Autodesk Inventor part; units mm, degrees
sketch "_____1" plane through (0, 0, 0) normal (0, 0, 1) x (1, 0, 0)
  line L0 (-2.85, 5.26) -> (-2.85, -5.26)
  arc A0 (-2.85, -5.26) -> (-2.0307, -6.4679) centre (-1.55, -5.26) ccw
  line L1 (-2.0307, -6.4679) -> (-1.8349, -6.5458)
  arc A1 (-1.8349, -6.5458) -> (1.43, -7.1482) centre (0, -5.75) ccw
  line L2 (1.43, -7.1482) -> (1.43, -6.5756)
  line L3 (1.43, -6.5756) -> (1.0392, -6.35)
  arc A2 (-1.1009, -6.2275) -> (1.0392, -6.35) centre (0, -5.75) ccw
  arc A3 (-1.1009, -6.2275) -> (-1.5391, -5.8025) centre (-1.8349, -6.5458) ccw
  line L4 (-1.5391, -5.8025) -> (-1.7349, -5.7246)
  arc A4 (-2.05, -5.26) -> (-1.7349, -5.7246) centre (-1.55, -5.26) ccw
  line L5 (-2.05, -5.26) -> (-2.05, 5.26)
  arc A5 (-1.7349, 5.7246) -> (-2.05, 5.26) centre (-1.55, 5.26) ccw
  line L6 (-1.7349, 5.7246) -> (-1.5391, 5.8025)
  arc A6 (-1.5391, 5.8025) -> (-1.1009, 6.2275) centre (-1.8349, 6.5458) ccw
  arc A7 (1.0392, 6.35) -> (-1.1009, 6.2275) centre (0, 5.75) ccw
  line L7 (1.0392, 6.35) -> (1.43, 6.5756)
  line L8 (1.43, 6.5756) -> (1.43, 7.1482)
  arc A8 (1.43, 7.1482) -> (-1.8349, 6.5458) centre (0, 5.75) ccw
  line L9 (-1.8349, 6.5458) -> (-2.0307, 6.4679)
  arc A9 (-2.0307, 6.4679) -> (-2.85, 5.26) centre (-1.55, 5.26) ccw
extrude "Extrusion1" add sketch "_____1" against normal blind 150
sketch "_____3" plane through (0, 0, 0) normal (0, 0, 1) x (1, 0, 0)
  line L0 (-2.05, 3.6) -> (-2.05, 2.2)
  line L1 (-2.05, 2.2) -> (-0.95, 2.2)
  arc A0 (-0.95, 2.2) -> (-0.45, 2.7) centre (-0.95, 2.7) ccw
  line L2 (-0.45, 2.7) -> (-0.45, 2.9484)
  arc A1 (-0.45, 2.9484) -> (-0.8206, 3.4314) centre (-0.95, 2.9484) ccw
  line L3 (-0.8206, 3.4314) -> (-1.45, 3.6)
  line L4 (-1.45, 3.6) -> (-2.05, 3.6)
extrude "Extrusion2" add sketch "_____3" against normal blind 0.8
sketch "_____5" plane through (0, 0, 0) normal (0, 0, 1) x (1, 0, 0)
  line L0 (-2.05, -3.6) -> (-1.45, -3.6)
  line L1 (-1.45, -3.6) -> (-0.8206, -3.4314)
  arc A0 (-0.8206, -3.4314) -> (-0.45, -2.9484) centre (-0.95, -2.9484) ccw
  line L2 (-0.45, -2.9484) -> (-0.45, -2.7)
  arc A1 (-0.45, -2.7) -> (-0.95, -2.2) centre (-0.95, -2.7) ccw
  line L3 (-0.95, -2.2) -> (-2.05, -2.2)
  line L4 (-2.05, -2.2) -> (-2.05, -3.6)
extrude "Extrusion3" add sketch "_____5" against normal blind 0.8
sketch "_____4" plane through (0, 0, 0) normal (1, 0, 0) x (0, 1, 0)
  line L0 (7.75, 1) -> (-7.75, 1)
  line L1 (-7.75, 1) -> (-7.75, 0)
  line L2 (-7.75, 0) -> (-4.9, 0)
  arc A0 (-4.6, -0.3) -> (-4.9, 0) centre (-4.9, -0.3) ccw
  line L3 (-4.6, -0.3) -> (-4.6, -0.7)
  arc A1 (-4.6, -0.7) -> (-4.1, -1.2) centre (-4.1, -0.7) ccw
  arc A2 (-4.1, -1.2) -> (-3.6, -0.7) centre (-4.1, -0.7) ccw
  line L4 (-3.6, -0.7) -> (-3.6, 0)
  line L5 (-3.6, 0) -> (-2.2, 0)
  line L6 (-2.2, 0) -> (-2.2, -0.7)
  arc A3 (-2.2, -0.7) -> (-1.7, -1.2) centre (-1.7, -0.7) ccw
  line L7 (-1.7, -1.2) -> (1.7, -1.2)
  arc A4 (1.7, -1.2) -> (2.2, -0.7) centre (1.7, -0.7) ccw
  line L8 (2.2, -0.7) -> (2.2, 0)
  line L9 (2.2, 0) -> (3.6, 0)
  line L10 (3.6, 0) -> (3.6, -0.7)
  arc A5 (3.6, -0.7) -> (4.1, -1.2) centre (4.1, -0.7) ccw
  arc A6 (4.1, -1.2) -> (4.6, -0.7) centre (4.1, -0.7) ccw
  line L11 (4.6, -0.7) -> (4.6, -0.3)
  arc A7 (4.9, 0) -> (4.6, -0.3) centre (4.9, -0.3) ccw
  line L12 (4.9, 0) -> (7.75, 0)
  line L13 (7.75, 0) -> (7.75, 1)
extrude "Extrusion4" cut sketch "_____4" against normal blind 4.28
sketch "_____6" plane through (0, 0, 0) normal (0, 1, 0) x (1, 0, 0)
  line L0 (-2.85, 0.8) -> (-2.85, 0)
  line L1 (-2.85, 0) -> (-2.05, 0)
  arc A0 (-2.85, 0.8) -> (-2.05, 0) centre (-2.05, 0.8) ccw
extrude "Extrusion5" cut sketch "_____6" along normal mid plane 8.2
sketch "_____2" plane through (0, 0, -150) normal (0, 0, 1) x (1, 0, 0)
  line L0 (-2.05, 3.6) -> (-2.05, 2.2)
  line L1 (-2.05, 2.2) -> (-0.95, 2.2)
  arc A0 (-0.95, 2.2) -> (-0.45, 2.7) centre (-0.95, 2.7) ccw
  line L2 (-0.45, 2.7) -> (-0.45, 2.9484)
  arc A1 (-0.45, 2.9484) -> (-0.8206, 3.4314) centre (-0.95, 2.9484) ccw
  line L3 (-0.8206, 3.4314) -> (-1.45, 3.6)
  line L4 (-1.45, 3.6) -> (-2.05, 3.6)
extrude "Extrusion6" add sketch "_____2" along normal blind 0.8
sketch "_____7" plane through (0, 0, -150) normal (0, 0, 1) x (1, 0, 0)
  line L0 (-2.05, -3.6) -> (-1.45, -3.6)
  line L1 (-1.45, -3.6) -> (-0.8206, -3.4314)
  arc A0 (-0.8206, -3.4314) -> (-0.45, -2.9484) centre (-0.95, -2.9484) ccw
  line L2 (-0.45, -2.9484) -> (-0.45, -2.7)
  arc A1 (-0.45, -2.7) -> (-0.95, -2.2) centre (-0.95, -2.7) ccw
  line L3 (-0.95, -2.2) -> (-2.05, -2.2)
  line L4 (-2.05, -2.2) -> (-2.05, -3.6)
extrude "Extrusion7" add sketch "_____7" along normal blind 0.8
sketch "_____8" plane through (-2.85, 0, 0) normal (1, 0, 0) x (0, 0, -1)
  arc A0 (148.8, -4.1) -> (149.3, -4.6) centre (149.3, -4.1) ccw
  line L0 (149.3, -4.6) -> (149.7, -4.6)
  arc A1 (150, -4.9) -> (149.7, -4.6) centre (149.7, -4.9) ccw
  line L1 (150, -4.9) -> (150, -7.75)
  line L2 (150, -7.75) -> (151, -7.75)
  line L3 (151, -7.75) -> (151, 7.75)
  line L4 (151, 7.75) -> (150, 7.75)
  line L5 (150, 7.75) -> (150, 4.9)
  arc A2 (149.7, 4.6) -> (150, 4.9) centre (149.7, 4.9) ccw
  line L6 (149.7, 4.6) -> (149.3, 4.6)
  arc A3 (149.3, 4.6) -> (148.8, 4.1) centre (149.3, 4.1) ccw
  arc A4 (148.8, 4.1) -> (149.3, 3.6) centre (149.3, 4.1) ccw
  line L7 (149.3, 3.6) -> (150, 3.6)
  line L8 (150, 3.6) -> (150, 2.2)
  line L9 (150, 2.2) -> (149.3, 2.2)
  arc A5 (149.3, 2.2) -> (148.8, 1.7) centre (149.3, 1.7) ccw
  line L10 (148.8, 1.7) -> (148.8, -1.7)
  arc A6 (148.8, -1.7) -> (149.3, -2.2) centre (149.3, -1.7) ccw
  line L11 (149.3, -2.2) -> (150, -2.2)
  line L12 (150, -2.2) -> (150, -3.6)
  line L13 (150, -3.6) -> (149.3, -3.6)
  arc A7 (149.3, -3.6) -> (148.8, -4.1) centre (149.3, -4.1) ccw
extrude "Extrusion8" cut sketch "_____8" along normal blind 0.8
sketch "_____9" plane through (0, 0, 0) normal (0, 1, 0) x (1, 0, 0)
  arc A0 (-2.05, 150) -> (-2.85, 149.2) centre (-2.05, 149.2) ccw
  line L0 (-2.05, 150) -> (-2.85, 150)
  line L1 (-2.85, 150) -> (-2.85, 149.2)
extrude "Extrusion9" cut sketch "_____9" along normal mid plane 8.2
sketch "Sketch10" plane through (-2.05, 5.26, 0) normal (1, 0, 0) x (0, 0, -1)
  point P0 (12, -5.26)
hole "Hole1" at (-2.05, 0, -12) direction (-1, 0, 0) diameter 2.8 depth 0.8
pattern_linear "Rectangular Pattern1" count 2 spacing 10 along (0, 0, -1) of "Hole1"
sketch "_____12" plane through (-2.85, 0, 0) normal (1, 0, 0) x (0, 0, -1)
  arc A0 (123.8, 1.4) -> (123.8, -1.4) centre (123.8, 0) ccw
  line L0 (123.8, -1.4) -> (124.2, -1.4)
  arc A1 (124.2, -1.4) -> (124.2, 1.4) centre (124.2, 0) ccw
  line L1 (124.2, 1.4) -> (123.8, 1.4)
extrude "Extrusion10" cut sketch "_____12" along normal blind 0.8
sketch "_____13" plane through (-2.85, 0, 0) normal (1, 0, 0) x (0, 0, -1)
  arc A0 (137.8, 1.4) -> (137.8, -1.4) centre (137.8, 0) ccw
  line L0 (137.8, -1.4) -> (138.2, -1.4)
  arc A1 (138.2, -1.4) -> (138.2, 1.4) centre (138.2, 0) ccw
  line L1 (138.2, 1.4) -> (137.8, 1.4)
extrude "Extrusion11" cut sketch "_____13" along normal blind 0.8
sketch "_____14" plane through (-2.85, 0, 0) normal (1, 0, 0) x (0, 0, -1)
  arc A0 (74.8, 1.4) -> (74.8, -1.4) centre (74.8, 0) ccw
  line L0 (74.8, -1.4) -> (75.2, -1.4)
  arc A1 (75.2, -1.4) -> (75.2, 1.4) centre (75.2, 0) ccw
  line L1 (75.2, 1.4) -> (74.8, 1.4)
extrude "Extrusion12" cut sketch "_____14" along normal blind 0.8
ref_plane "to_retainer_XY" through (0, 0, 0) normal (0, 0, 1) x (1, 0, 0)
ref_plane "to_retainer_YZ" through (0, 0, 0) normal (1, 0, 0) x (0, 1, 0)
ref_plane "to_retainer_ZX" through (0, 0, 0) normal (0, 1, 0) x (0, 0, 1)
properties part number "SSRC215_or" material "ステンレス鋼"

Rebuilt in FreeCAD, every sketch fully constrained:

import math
import FreeCAD as App
import Part
import Sketcher
from FreeCAD import Vector

doc = App.newDocument("Part")
body = doc.addObject("PartDesign::Body", "Body")

# Sketch on XY plane
sketch1 = body.newObject("Sketcher::SketchObject", "Sketch")
sketch1.AttachmentSupport = (doc.getObject("XY_Plane"), [""])
sketch1.MapMode = "FlatFace"
sketch1.addGeometry([
    Part.ArcOfCircle(Part.Circle(Vector(-1.55, 5.26, 0), Vector(0, 0, 1), 1.3), math.radians(112), math.radians(180)),  # 0
    Part.LineSegment(Vector(-2.85, 5.26, 0), Vector(-2.85, -5.26, 0)),  # 1
    Part.ArcOfCircle(Part.Circle(Vector(-1.55, -5.26, 0), Vector(0, 0, 1), 1.3), math.radians(180), math.radians(248)),  # 2
    Part.LineSegment(Vector(-2.03, -6.47, 0), Vector(-1.83, -6.55, 0)),  # 3
    Part.ArcOfCircle(Part.Circle(Vector(0, -5.75, 0), Vector(0, 0, 1), 2), math.radians(-157), math.radians(-44)),  # 4
    Part.LineSegment(Vector(1.43, -7.15, 0), Vector(1.43, -6.58, 0)),  # 5
    Part.LineSegment(Vector(1.43, -6.58, 0), Vector(1.04, -6.35, 0)),  # 6
    Part.ArcOfCircle(Part.Circle(Vector(0, -5.75, 0), Vector(0, 0, 1), 1.2), math.radians(-157), math.radians(-30)),  # 7
    Part.ArcOfCircle(Part.Circle(Vector(-1.83, -6.55, 0), Vector(0, 0, 1), 0.8), math.radians(23), math.radians(68)),  # 8
    Part.LineSegment(Vector(-1.54, -5.8, 0), Vector(-1.73, -5.72, 0)),  # 9
    Part.ArcOfCircle(Part.Circle(Vector(-1.55, -5.26, 0), Vector(0, 0, 1), 0.5), math.radians(180), math.radians(248)),  # 10
    Part.LineSegment(Vector(-2.05, -5.26, 0), Vector(-2.05, 5.26, 0)),  # 11
    Part.ArcOfCircle(Part.Circle(Vector(-1.55, 5.26, 0), Vector(0, 0, 1), 0.5), math.radians(112), math.radians(180)),  # 12
    Part.LineSegment(Vector(-1.73, 5.72, 0), Vector(-1.54, 5.8, 0)),  # 13
    Part.ArcOfCircle(Part.Circle(Vector(-1.83, 6.55, 0), Vector(0, 0, 1), 0.8), math.radians(-68), math.radians(-23)),  # 14
    Part.ArcOfCircle(Part.Circle(Vector(0, 5.75, 0), Vector(0, 0, 1), 1.2), math.radians(30), math.radians(157)),  # 15
    Part.LineSegment(Vector(1.04, 6.35, 0), Vector(1.43, 6.58, 0)),  # 16
    Part.LineSegment(Vector(1.43, 6.58, 0), Vector(1.43, 7.15, 0)),  # 17
    Part.ArcOfCircle(Part.Circle(Vector(0, 5.75, 0), Vector(0, 0, 1), 2), math.radians(44), math.radians(157)),  # 18
    Part.LineSegment(Vector(-1.83, 6.55, 0), Vector(-2.03, 6.47, 0)),  # 19
], False)
sketch1.addConstraint([
    Sketcher.Constraint("Tangent", 0, 2, 1, 1),
    Sketcher.Constraint("Tangent", 1, 2, 2, 1),
    Sketcher.Constraint("Tangent", 2, 2, 3, 1),
    Sketcher.Constraint("Coincident", 3, 2, 4, 1),
    Sketcher.Constraint("Coincident", 4, 2, 5, 1),
    Sketcher.Constraint("Coincident", 5, 2, 6, 1),
    Sketcher.Constraint("Coincident", 6, 2, 7, 2),
    Sketcher.Constraint("Tangent", 7, 1, 8, 1),
    Sketcher.Constraint("Tangent", 8, 2, 9, 1),
    Sketcher.Constraint("Tangent", 9, 2, 10, 2),
    Sketcher.Constraint("Tangent", 10, 1, 11, 1),
    Sketcher.Constraint("Tangent", 11, 2, 12, 2),
    Sketcher.Constraint("Tangent", 12, 1, 13, 1),
    Sketcher.Constraint("Tangent", 13, 2, 14, 1),
    Sketcher.Constraint("Tangent", 14, 2, 15, 2),
    Sketcher.Constraint("Coincident", 15, 1, 16, 1),
    Sketcher.Constraint("Coincident", 16, 2, 17, 1),
    Sketcher.Constraint("Coincident", 17, 2, 18, 1),
    Sketcher.Constraint("Coincident", 18, 2, 19, 1),
    Sketcher.Constraint("Tangent", 19, 2, 0, 1),
    Sketcher.Constraint("Vertical", 1),
    Sketcher.Constraint("Vertical", 5),
    Sketcher.Constraint("Vertical", 11),
    Sketcher.Constraint("Vertical", 17),
    Sketcher.Constraint("Coincident", 7, 3, 4, 3),
    Sketcher.Constraint("Coincident", 10, 3, 2, 3),
    Sketcher.Constraint("Coincident", 12, 3, 0, 3),
    Sketcher.Constraint("Coincident", 18, 3, 15, 3),
    Sketcher.Constraint("Coincident", 3, 2, 8, 3),
    Sketcher.Constraint("Coincident", 18, 2, 14, 3),
    Sketcher.Constraint("Equal", 0, 2),
    Sketcher.Constraint("Equal", 8, 14),
    Sketcher.Constraint("Equal", 7, 15),
    Sketcher.Constraint("Symmetric", 4, 3, 15, 3, -1, 1),
    Sketcher.Constraint("Symmetric", 8, 3, 14, 3, -1),
    Sketcher.Constraint("Symmetric", 5, 2, 16, 2, -1),
    Sketcher.Constraint("Parallel", 3, 9),
    Sketcher.Constraint("Vertical", 9, 2, 12, 1),
    Sketcher.Constraint("Vertical", 6, 2, 15, 1),
    Sketcher.Constraint("Radius", 4, 2.0),
    Sketcher.Constraint("Radius", 0, 1.3),
    Sketcher.Constraint("Radius", 7, 1.2),
    Sketcher.Constraint("DistanceY", 1, 2, 1, 1, 10.52),
    Sketcher.Constraint("DistanceY", 6, 2, 4, 3, 0.6),
    Sketcher.Constraint("DistanceX", 14, 3, 12, 1, 0.1),
    Sketcher.Constraint("DistanceX", 0, 3, -1, 1, 1.55),
    Sketcher.Constraint("DistanceY", 4, 3, -1, 1, 5.75),
    Sketcher.Constraint("DistanceX", -1, 1, 4, 2, 1.43),
    Sketcher.Constraint("DistanceY", 5, 1, 5, 2, 0.5726),
])
pad1 = body.newObject("PartDesign::Pad", "Pad")
pad1.Profile = sketch1
pad1.Length = 150
pad1.Reversed = True

# Sketch on XY plane
sketch2 = body.newObject("Sketcher::SketchObject", "Sketch001")
sketch2.AttachmentSupport = (doc.getObject("XY_Plane"), [""])
sketch2.MapMode = "FlatFace"
sketch2.addGeometry([
    Part.LineSegment(Vector(-1.45, 3.6, 0), Vector(-2.05, 3.6, 0)),  # 0
    Part.LineSegment(Vector(-2.05, 3.6, 0), Vector(-2.05, 2.2, 0)),  # 1
    Part.LineSegment(Vector(-2.05, 2.2, 0), Vector(-0.95, 2.2, 0)),  # 2
    Part.ArcOfCircle(Part.Circle(Vector(-0.95, 2.7, 0), Vector(0, 0, 1), 0.5), math.radians(-90), math.radians(0)),  # 3
    Part.LineSegment(Vector(-0.45, 2.7, 0), Vector(-0.45, 2.95, 0)),  # 4
    Part.ArcOfCircle(Part.Circle(Vector(-0.95, 2.95, 0), Vector(0, 0, 1), 0.5), math.radians(0), math.radians(75)),  # 5
    Part.LineSegment(Vector(-0.82, 3.43, 0), Vector(-1.45, 3.6, 0)),  # 6
], False)
sketch2.addConstraint([
    Sketcher.Constraint("Coincident", 0, 2, 1, 1),
    Sketcher.Constraint("Coincident", 1, 2, 2, 1),
    Sketcher.Constraint("Tangent", 2, 2, 3, 1),
    Sketcher.Constraint("Tangent", 3, 2, 4, 1),
    Sketcher.Constraint("Tangent", 4, 2, 5, 1),
    Sketcher.Constraint("Tangent", 5, 2, 6, 1),
    Sketcher.Constraint("Coincident", 6, 2, 0, 1),
    Sketcher.Constraint("Horizontal", 0),
    Sketcher.Constraint("Vertical", 1),
    Sketcher.Constraint("Horizontal", 2),
    Sketcher.Constraint("Vertical", 4),
    Sketcher.Constraint("Equal", 3, 5),
    Sketcher.Constraint("Radius", 3, 0.5),
    Sketcher.Constraint("DistanceX", 0, 2, 0, 1, 0.6),
    Sketcher.Constraint("DistanceX", 2, 1, 2, 2, 1.1),
    Sketcher.Constraint("DistanceY", 1, 2, 1, 1, 1.4),
    Sketcher.Constraint("DistanceY", -1, 1, 3, 3, 2.7),
    Sketcher.Constraint("DistanceX", 3, 3, -1, 1, 0.95),
    Sketcher.Constraint("DistanceY", 4, 1, 4, 2, 0.2484),
])
pad2 = body.newObject("PartDesign::Pad", "Pad001")
pad2.Profile = sketch2
pad2.Length = 0.8
pad2.Reversed = True

# Sketch on XY plane
sketch3 = body.newObject("Sketcher::SketchObject", "Sketch002")
sketch3.AttachmentSupport = (doc.getObject("XY_Plane"), [""])
sketch3.MapMode = "FlatFace"
sketch3.addGeometry([
    Part.LineSegment(Vector(-2.05, -2.2, 0), Vector(-2.05, -3.6, 0)),  # 0
    Part.LineSegment(Vector(-2.05, -3.6, 0), Vector(-1.45, -3.6, 0)),  # 1
    Part.LineSegment(Vector(-1.45, -3.6, 0), Vector(-0.82, -3.43, 0)),  # 2
    Part.ArcOfCircle(Part.Circle(Vector(-0.95, -2.95, 0), Vector(0, 0, 1), 0.5), math.radians(-75), math.radians(0)),  # 3
    Part.LineSegment(Vector(-0.45, -2.95, 0), Vector(-0.45, -2.7, 0)),  # 4
    Part.ArcOfCircle(Part.Circle(Vector(-0.95, -2.7, 0), Vector(0, 0, 1), 0.5), math.radians(0), math.radians(90)),  # 5
    Part.LineSegment(Vector(-0.95, -2.2, 0), Vector(-2.05, -2.2, 0)),  # 6
], False)
sketch3.addConstraint([
    Sketcher.Constraint("Coincident", 0, 2, 1, 1),
    Sketcher.Constraint("Coincident", 1, 2, 2, 1),
    Sketcher.Constraint("Tangent", 2, 2, 3, 1),
    Sketcher.Constraint("Tangent", 3, 2, 4, 1),
    Sketcher.Constraint("Tangent", 4, 2, 5, 1),
    Sketcher.Constraint("Tangent", 5, 2, 6, 1),
    Sketcher.Constraint("Coincident", 6, 2, 0, 1),
    Sketcher.Constraint("Vertical", 0),
    Sketcher.Constraint("Horizontal", 1),
    Sketcher.Constraint("Vertical", 4),
    Sketcher.Constraint("Horizontal", 6),
    Sketcher.Constraint("Equal", 3, 5),
    Sketcher.Constraint("Radius", 3, 0.5),
    Sketcher.Constraint("DistanceX", 1, 1, 1, 2, 0.6),
    Sketcher.Constraint("DistanceX", 6, 2, 6, 1, 1.1),
    Sketcher.Constraint("DistanceY", 0, 2, 0, 1, 1.4),
    Sketcher.Constraint("DistanceY", 5, 3, -1, 1, 2.7),
    Sketcher.Constraint("DistanceX", 3, 3, -1, 1, 0.95),
    Sketcher.Constraint("DistanceY", 4, 1, 4, 2, 0.2484),
])
pad3 = body.newObject("PartDesign::Pad", "Pad002")
pad3.Profile = sketch3
pad3.Length = 0.8
pad3.Reversed = True

# Sketch on YZ plane
sketch4 = body.newObject("Sketcher::SketchObject", "Sketch003")
sketch4.AttachmentSupport = (doc.getObject("YZ_Plane"), [""])
sketch4.MapMode = "FlatFace"
sketch4.addGeometry([
    Part.LineSegment(Vector(7.75, 0, 0), Vector(7.75, 1, 0)),  # 0
    Part.LineSegment(Vector(7.75, 1, 0), Vector(-7.75, 1, 0)),  # 1
    Part.LineSegment(Vector(-7.75, 1, 0), Vector(-7.75, 0, 0)),  # 2
    Part.LineSegment(Vector(-7.75, 0, 0), Vector(-4.9, 0, 0)),  # 3
    Part.ArcOfCircle(Part.Circle(Vector(-4.9, -0.3, 0), Vector(0, 0, 1), 0.3), math.radians(0), math.radians(90)),  # 4
    Part.LineSegment(Vector(-4.6, -0.3, 0), Vector(-4.6, -0.7, 0)),  # 5
    Part.ArcOfCircle(Part.Circle(Vector(-4.1, -0.7, 0), Vector(0, 0, 1), 0.5), math.radians(180), math.radians(360)),  # 6
    Part.LineSegment(Vector(-3.6, -0.7, 0), Vector(-3.6, 0, 0)),  # 7
    Part.LineSegment(Vector(-3.6, 0, 0), Vector(-2.2, 0, 0)),  # 8
    Part.LineSegment(Vector(-2.2, 0, 0), Vector(-2.2, -0.7, 0)),  # 9
    Part.ArcOfCircle(Part.Circle(Vector(-1.7, -0.7, 0), Vector(0, 0, 1), 0.5), math.radians(180), math.radians(270)),  # 10
    Part.LineSegment(Vector(-1.7, -1.2, 0), Vector(1.7, -1.2, 0)),  # 11
    Part.ArcOfCircle(Part.Circle(Vector(1.7, -0.7, 0), Vector(0, 0, 1), 0.5), math.radians(-90), math.radians(0)),  # 12
    Part.LineSegment(Vector(2.2, -0.7, 0), Vector(2.2, 0, 0)),  # 13
    Part.LineSegment(Vector(2.2, 0, 0), Vector(3.6, 0, 0)),  # 14
    Part.LineSegment(Vector(3.6, 0, 0), Vector(3.6, -0.7, 0)),  # 15
    Part.ArcOfCircle(Part.Circle(Vector(4.1, -0.7, 0), Vector(0, 0, 1), 0.5), math.radians(180), math.radians(360)),  # 16
    Part.LineSegment(Vector(4.6, -0.7, 0), Vector(4.6, -0.3, 0)),  # 17
    Part.ArcOfCircle(Part.Circle(Vector(4.9, -0.3, 0), Vector(0, 0, 1), 0.3), math.radians(90), math.radians(180)),  # 18
    Part.LineSegment(Vector(4.9, 0, 0), Vector(7.75, 0, 0)),  # 19
], False)
sketch4.addConstraint([
    Sketcher.Constraint("Coincident", 0, 2, 1, 1),
    Sketcher.Constraint("Coincident", 1, 2, 2, 1),
    Sketcher.Constraint("Coincident", 2, 2, 3, 1),
    Sketcher.Constraint("Tangent", 3, 2, 4, 2),
    Sketcher.Constraint("Tangent", 4, 1, 5, 1),
    Sketcher.Constraint("Tangent", 5, 2, 6, 1),
    Sketcher.Constraint("Tangent", 6, 2, 7, 1),
    Sketcher.Constraint("Coincident", 7, 2, 8, 1),
    Sketcher.Constraint("Coincident", 8, 2, 9, 1),
    Sketcher.Constraint("Tangent", 9, 2, 10, 1),
    Sketcher.Constraint("Tangent", 10, 2, 11, 1),
    Sketcher.Constraint("Tangent", 11, 2, 12, 1),
    Sketcher.Constraint("Tangent", 12, 2, 13, 1),
    Sketcher.Constraint("Coincident", 13, 2, 14, 1),
    Sketcher.Constraint("Coincident", 14, 2, 15, 1),
    Sketcher.Constraint("Tangent", 15, 2, 16, 1),
    Sketcher.Constraint("Tangent", 16, 2, 17, 1),
    Sketcher.Constraint("Tangent", 17, 2, 18, 2),
    Sketcher.Constraint("Tangent", 18, 1, 19, 1),
    Sketcher.Constraint("Coincident", 19, 2, 0, 1),
    Sketcher.Constraint("Vertical", 0),
    Sketcher.Constraint("Horizontal", 1),
    Sketcher.Constraint("Vertical", 2),
    Sketcher.Constraint("Horizontal", 3),
    Sketcher.Constraint("Vertical", 5),
    Sketcher.Constraint("Vertical", 7),
    Sketcher.Constraint("Horizontal", 8),
    Sketcher.Constraint("Vertical", 9),
    Sketcher.Constraint("Horizontal", 11),
    Sketcher.Constraint("Vertical", 13),
    Sketcher.Constraint("Horizontal", 14),
    Sketcher.Constraint("Vertical", 15),
    Sketcher.Constraint("Vertical", 17),
    Sketcher.Constraint("Horizontal", 19),
    Sketcher.Constraint("Equal", 6, 10),
    Sketcher.Constraint("Equal", 10, 12),
    Sketcher.Constraint("Equal", 12, 16),
    Sketcher.Constraint("Equal", 4, 18),
    Sketcher.Constraint("Symmetric", 8, 2, 13, 2, -1, 1),
    Sketcher.Constraint("Symmetric", 3, 2, 18, 1, -1, 1),
    Sketcher.Constraint("Symmetric", 2, 2, 19, 2, -2),
    Sketcher.Constraint("PointOnObject", 7, 2, -1),
    Sketcher.Constraint("Horizontal", 6, 3, 10, 3),
    Sketcher.Constraint("Horizontal", 12, 3, 16, 3),
    Sketcher.Constraint("Radius", 4, 0.3),
    Sketcher.Constraint("Radius", 6, 0.5),
    Sketcher.Constraint("DistanceY", 0, 1, 0, 2, 1.0),
    Sketcher.Constraint("DistanceX", 1, 2, 1, 1, 15.5),
    Sketcher.Constraint("DistanceX", 8, 1, 8, 2, 1.4),
    Sketcher.Constraint("DistanceX", 11, 1, 11, 2, 3.4),
    Sketcher.Constraint("DistanceY", 5, 2, 5, 1, 0.4),
])
pocket1 = body.newObject("PartDesign::Pocket", "Pocket")
pocket1.Profile = sketch4
pocket1.Length = 4.28

# Sketch on XZ plane
sketch5 = body.newObject("Sketcher::SketchObject", "Sketch004")
sketch5.AttachmentSupport = (doc.getObject("XZ_Plane"), [""])
sketch5.MapMode = "FlatFace"
sketch5.addGeometry([
    Part.ArcOfCircle(Part.Circle(Vector(-2, -0.8, 0), Vector(0, 0, 1), 0.8), math.radians(90), math.radians(180)),
    Part.LineSegment(Vector(-2.9, -0.8, 0), Vector(-2.9, 0, 0)),
    Part.LineSegment(Vector(-2.9, 0, 0), Vector(-2, 0, 0)),
], False)
sketch5.addConstraint([
    Sketcher.Constraint("Tangent", 0, 2, 1, 1),
    Sketcher.Constraint("Coincident", 1, 2, 2, 1),
    Sketcher.Constraint("Tangent", 2, 2, 0, 1),
    Sketcher.Constraint("Vertical", 1),
    Sketcher.Constraint("Horizontal", 2),
    Sketcher.Constraint("PointOnObject", 1, 2, -1),
    Sketcher.Constraint("Radius", 0, 0.8),
    Sketcher.Constraint("DistanceX", 0, 3, -1, 1, 2.05),
])
pocket2 = body.newObject("PartDesign::Pocket", "Pocket001")
pocket2.Profile = sketch5
pocket2.Length = 8.2
pocket2.Midplane = True

# Sketch on XY plane
sketch6 = body.newObject("Sketcher::SketchObject", "Sketch005")
sketch6.AttachmentSupport = (doc.getObject("XY_Plane"), [""])
sketch6.MapMode = "FlatFace"
sketch6.AttachmentOffset = App.Placement(Vector(0, 0, -150), App.Rotation())
sketch6.addGeometry([
    Part.LineSegment(Vector(-1.45, 3.6, 0), Vector(-2.05, 3.6, 0)),  # 0
    Part.LineSegment(Vector(-2.05, 3.6, 0), Vector(-2.05, 2.2, 0)),  # 1
    Part.LineSegment(Vector(-2.05, 2.2, 0), Vector(-0.95, 2.2, 0)),  # 2
    Part.ArcOfCircle(Part.Circle(Vector(-0.95, 2.7, 0), Vector(0, 0, 1), 0.5), math.radians(-90), math.radians(0)),  # 3
    Part.LineSegment(Vector(-0.45, 2.7, 0), Vector(-0.45, 2.95, 0)),  # 4
    Part.ArcOfCircle(Part.Circle(Vector(-0.95, 2.95, 0), Vector(0, 0, 1), 0.5), math.radians(0), math.radians(75)),  # 5
    Part.LineSegment(Vector(-0.82, 3.43, 0), Vector(-1.45, 3.6, 0)),  # 6
], False)
sketch6.addConstraint([
    Sketcher.Constraint("Coincident", 0, 2, 1, 1),
    Sketcher.Constraint("Coincident", 1, 2, 2, 1),
    Sketcher.Constraint("Tangent", 2, 2, 3, 1),
    Sketcher.Constraint("Tangent", 3, 2, 4, 1),
    Sketcher.Constraint("Tangent", 4, 2, 5, 1),
    Sketcher.Constraint("Tangent", 5, 2, 6, 1),
    Sketcher.Constraint("Coincident", 6, 2, 0, 1),
    Sketcher.Constraint("Horizontal", 0),
    Sketcher.Constraint("Vertical", 1),
    Sketcher.Constraint("Horizontal", 2),
    Sketcher.Constraint("Vertical", 4),
    Sketcher.Constraint("Equal", 3, 5),
    Sketcher.Constraint("Radius", 3, 0.5),
    Sketcher.Constraint("DistanceX", 0, 2, 0, 1, 0.6),
    Sketcher.Constraint("DistanceX", 2, 1, 2, 2, 1.1),
    Sketcher.Constraint("DistanceY", 1, 2, 1, 1, 1.4),
    Sketcher.Constraint("DistanceY", -1, 1, 3, 3, 2.7),
    Sketcher.Constraint("DistanceX", 3, 3, -1, 1, 0.95),
    Sketcher.Constraint("DistanceY", 4, 1, 4, 2, 0.2484),
])
pad4 = body.newObject("PartDesign::Pad", "Pad003")
pad4.Profile = sketch6
pad4.Length = 0.8

# Sketch on XY plane
sketch7 = body.newObject("Sketcher::SketchObject", "Sketch006")
sketch7.AttachmentSupport = (doc.getObject("XY_Plane"), [""])
sketch7.MapMode = "FlatFace"
sketch7.AttachmentOffset = App.Placement(Vector(0, 0, -150), App.Rotation())
sketch7.addGeometry([
    Part.LineSegment(Vector(-2.05, -2.2, 0), Vector(-2.05, -3.6, 0)),  # 0
    Part.LineSegment(Vector(-2.05, -3.6, 0), Vector(-1.45, -3.6, 0)),  # 1
    Part.LineSegment(Vector(-1.45, -3.6, 0), Vector(-0.82, -3.43, 0)),  # 2
    Part.ArcOfCircle(Part.Circle(Vector(-0.95, -2.95, 0), Vector(0, 0, 1), 0.5), math.radians(-75), math.radians(0)),  # 3
    Part.LineSegment(Vector(-0.45, -2.95, 0), Vector(-0.45, -2.7, 0)),  # 4
    Part.ArcOfCircle(Part.Circle(Vector(-0.95, -2.7, 0), Vector(0, 0, 1), 0.5), math.radians(0), math.radians(90)),  # 5
    Part.LineSegment(Vector(-0.95, -2.2, 0), Vector(-2.05, -2.2, 0)),  # 6
], False)
sketch7.addConstraint([
    Sketcher.Constraint("Coincident", 0, 2, 1, 1),
    Sketcher.Constraint("Coincident", 1, 2, 2, 1),
    Sketcher.Constraint("Tangent", 2, 2, 3, 1),
    Sketcher.Constraint("Tangent", 3, 2, 4, 1),
    Sketcher.Constraint("Tangent", 4, 2, 5, 1),
    Sketcher.Constraint("Tangent", 5, 2, 6, 1),
    Sketcher.Constraint("Coincident", 6, 2, 0, 1),
    Sketcher.Constraint("Vertical", 0),
    Sketcher.Constraint("Horizontal", 1),
    Sketcher.Constraint("Vertical", 4),
    Sketcher.Constraint("Horizontal", 6),
    Sketcher.Constraint("Equal", 3, 5),
    Sketcher.Constraint("Radius", 3, 0.5),
    Sketcher.Constraint("DistanceX", 1, 1, 1, 2, 0.6),
    Sketcher.Constraint("DistanceX", 6, 2, 6, 1, 1.1),
    Sketcher.Constraint("DistanceY", 0, 2, 0, 1, 1.4),
    Sketcher.Constraint("DistanceY", 5, 3, -1, 1, 2.7),
    Sketcher.Constraint("DistanceX", 3, 3, -1, 1, 0.95),
    Sketcher.Constraint("DistanceY", 4, 1, 4, 2, 0.2484),
])
pad5 = body.newObject("PartDesign::Pad", "Pad004")
pad5.Profile = sketch7
pad5.Length = 0.8

# Sketch on YZ plane
sketch8 = body.newObject("Sketcher::SketchObject", "Sketch007")
sketch8.AttachmentSupport = (doc.getObject("YZ_Plane"), [""])
sketch8.MapMode = "FlatFace"
sketch8.AttachmentOffset = App.Placement(Vector(0, 0, -2.85), App.Rotation())
sketch8.addGeometry([
    Part.ArcOfCircle(Part.Circle(Vector(-4.1, -149.3, 0), Vector(0, 0, 1), 0.5), math.radians(0), math.radians(180)),  # 0
    Part.LineSegment(Vector(-4.6, -149.3, 0), Vector(-4.6, -149.7, 0)),  # 1
    Part.ArcOfCircle(Part.Circle(Vector(-4.9, -149.7, 0), Vector(0, 0, 1), 0.3), math.radians(-90), math.radians(0)),  # 2
    Part.LineSegment(Vector(-4.9, -150, 0), Vector(-7.75, -150, 0)),  # 3
    Part.LineSegment(Vector(-7.75, -150, 0), Vector(-7.75, -151, 0)),  # 4
    Part.LineSegment(Vector(-7.75, -151, 0), Vector(7.75, -151, 0)),  # 5
    Part.LineSegment(Vector(7.75, -151, 0), Vector(7.75, -150, 0)),  # 6
    Part.LineSegment(Vector(7.75, -150, 0), Vector(4.9, -150, 0)),  # 7
    Part.ArcOfCircle(Part.Circle(Vector(4.9, -149.7, 0), Vector(0, 0, 1), 0.3), math.radians(180), math.radians(270)),  # 8
    Part.LineSegment(Vector(4.6, -149.7, 0), Vector(4.6, -149.3, 0)),  # 9
    Part.ArcOfCircle(Part.Circle(Vector(4.1, -149.3, 0), Vector(0, 0, 1), 0.5), math.radians(0), math.radians(180)),  # 10
    Part.LineSegment(Vector(3.6, -149.3, 0), Vector(3.6, -150, 0)),  # 11
    Part.LineSegment(Vector(3.6, -150, 0), Vector(2.2, -150, 0)),  # 12
    Part.LineSegment(Vector(2.2, -150, 0), Vector(2.2, -149.3, 0)),  # 13
    Part.ArcOfCircle(Part.Circle(Vector(1.7, -149.3, 0), Vector(0, 0, 1), 0.5), math.radians(0), math.radians(90)),  # 14
    Part.LineSegment(Vector(1.7, -148.8, 0), Vector(-1.7, -148.8, 0)),  # 15
    Part.ArcOfCircle(Part.Circle(Vector(-1.7, -149.3, 0), Vector(0, 0, 1), 0.5), math.radians(90), math.radians(180)),  # 16
    Part.LineSegment(Vector(-2.2, -149.3, 0), Vector(-2.2, -150, 0)),  # 17
    Part.LineSegment(Vector(-2.2, -150, 0), Vector(-3.6, -150, 0)),  # 18
    Part.LineSegment(Vector(-3.6, -150, 0), Vector(-3.6, -149.3, 0)),  # 19
], False)
sketch8.addConstraint([
    Sketcher.Constraint("Tangent", 0, 2, 1, 1),
    Sketcher.Constraint("Tangent", 1, 2, 2, 2),
    Sketcher.Constraint("Tangent", 2, 1, 3, 1),
    Sketcher.Constraint("Coincident", 3, 2, 4, 1),
    Sketcher.Constraint("Coincident", 4, 2, 5, 1),
    Sketcher.Constraint("Coincident", 5, 2, 6, 1),
    Sketcher.Constraint("Coincident", 6, 2, 7, 1),
    Sketcher.Constraint("Tangent", 7, 2, 8, 2),
    Sketcher.Constraint("Tangent", 8, 1, 9, 1),
    Sketcher.Constraint("Tangent", 9, 2, 10, 1),
    Sketcher.Constraint("Tangent", 10, 2, 11, 1),
    Sketcher.Constraint("Coincident", 11, 2, 12, 1),
    Sketcher.Constraint("Coincident", 12, 2, 13, 1),
    Sketcher.Constraint("Tangent", 13, 2, 14, 1),
    Sketcher.Constraint("Tangent", 14, 2, 15, 1),
    Sketcher.Constraint("Tangent", 15, 2, 16, 1),
    Sketcher.Constraint("Tangent", 16, 2, 17, 1),
    Sketcher.Constraint("Coincident", 17, 2, 18, 1),
    Sketcher.Constraint("Coincident", 18, 2, 19, 1),
    Sketcher.Constraint("Tangent", 19, 2, 0, 1),
    Sketcher.Constraint("Vertical", 1),
    Sketcher.Constraint("Horizontal", 3),
    Sketcher.Constraint("Vertical", 4),
    Sketcher.Constraint("Horizontal", 5),
    Sketcher.Constraint("Vertical", 6),
    Sketcher.Constraint("Horizontal", 7),
    Sketcher.Constraint("Vertical", 9),
    Sketcher.Constraint("Vertical", 11),
    Sketcher.Constraint("Horizontal", 12),
    Sketcher.Constraint("Vertical", 13),
    Sketcher.Constraint("Horizontal", 15),
    Sketcher.Constraint("Vertical", 17),
    Sketcher.Constraint("Horizontal", 18),
    Sketcher.Constraint("Vertical", 19),
    Sketcher.Constraint("Equal", 2, 8),
    Sketcher.Constraint("Equal", 0, 10),
    Sketcher.Constraint("Equal", 10, 14),
    Sketcher.Constraint("Equal", 14, 16),
    Sketcher.Constraint("Symmetric", 2, 3, 8, 3, -2),
    Sketcher.Constraint("Symmetric", 12, 2, 17, 2, -2),
    Sketcher.Constraint("Horizontal", 0, 3, 10, 3),
    Sketcher.Constraint("Horizontal", 10, 3, 14, 3),
    Sketcher.Constraint("Horizontal", 7, 2, 11, 2),
    Sketcher.Constraint("Equal", 3, 7),
    Sketcher.Constraint("Radius", 0, 0.5),
    Sketcher.Constraint("Radius", 2, 0.3),
    Sketcher.Constraint("DistanceY", 4, 2, 4, 1, 1.0),
    Sketcher.Constraint("DistanceX", 5, 1, 5, 2, 15.5),
    Sketcher.Constraint("DistanceX", 12, 2, 12, 1, 1.4),
    Sketcher.Constraint("DistanceX", 15, 2, 15, 1, 3.4),
    Sketcher.Constraint("DistanceY", 1, 2, 1, 1, 0.4),
    Sketcher.Constraint("DistanceY", 2, 1, -1, 1, 150.0),
])
pocket3 = body.newObject("PartDesign::Pocket", "Pocket002")
pocket3.Profile = sketch8
pocket3.Length = 0.8
pocket3.Reversed = True

# Sketch on XZ plane
sketch9 = body.newObject("Sketcher::SketchObject", "Sketch008")
sketch9.AttachmentSupport = (doc.getObject("XZ_Plane"), [""])
sketch9.MapMode = "FlatFace"
sketch9.addGeometry([
    Part.ArcOfCircle(Part.Circle(Vector(-2, -149.2, 0), Vector(0, 0, 1), 0.8), math.radians(180), math.radians(270)),
    Part.LineSegment(Vector(-2, -150, 0), Vector(-2.9, -150, 0)),
    Part.LineSegment(Vector(-2.9, -150, 0), Vector(-2.9, -149.2, 0)),
], False)
sketch9.addConstraint([
    Sketcher.Constraint("Tangent", 0, 2, 1, 1),
    Sketcher.Constraint("Coincident", 1, 2, 2, 1),
    Sketcher.Constraint("Tangent", 2, 2, 0, 1),
    Sketcher.Constraint("Horizontal", 1),
    Sketcher.Constraint("Vertical", 2),
    Sketcher.Constraint("Radius", 0, 0.8),
    Sketcher.Constraint("DistanceY", 0, 2, -1, 1, 150.0),
    Sketcher.Constraint("DistanceX", 0, 3, -1, 1, 2.05),
])
pocket4 = body.newObject("PartDesign::Pocket", "Pocket003")
pocket4.Profile = sketch9
pocket4.Length = 8.2
pocket4.Midplane = True

# Sketch on YZ plane
sketch10 = body.newObject("Sketcher::SketchObject", "Sketch009")
sketch10.AttachmentSupport = (doc.getObject("YZ_Plane"), [""])
sketch10.MapMode = "FlatFace"
sketch10.AttachmentOffset = App.Placement(Vector(0, 0, -2.05), App.Rotation())
sketch10.addGeometry(Part.Circle(Vector(0, -12, 0), Vector(0, 0, 1), 1.4), False)
sketch10.addConstraint([
    Sketcher.Constraint("PointOnObject", 0, 3, -2),
    Sketcher.Constraint("Diameter", 0, 2.8),
    Sketcher.Constraint("DistanceY", 0, 3, -1, 1, 12.0),
])
doc.recompute()
hole = body.newObject("PartDesign::Hole", "Hole")
hole.Profile = sketch10
hole.ThreadType = "None"
hole.Diameter = 2.8
hole.DepthType = "Dimension"
hole.Depth = 0.8
hole.DrillPoint = "Flat"
doc.recompute()

linearpattern = body.newObject("PartDesign::LinearPattern", "LinearPattern")
linearpattern.Originals = [hole]
linearpattern.Direction = (doc.getObject("Z_Axis"), [""])
linearpattern.Mode = "offset"
linearpattern.Offset = 10
linearpattern.Occurrences = 2
linearpattern.Reversed = True
body.Tip = linearpattern

# Sketch on YZ plane
sketch11 = body.newObject("Sketcher::SketchObject", "Sketch010")
sketch11.AttachmentSupport = (doc.getObject("YZ_Plane"), [""])
sketch11.MapMode = "FlatFace"
sketch11.AttachmentOffset = App.Placement(Vector(0, 0, -2.85), App.Rotation())
sketch11.addGeometry([
    Part.LineSegment(Vector(1.4, -124.2, 0), Vector(1.4, -123.8, 0)),
    Part.ArcOfCircle(Part.Circle(Vector(0, -123.8, 0), Vector(0, 0, 1), 1.4), math.radians(0), math.radians(180)),
    Part.LineSegment(Vector(-1.4, -123.8, 0), Vector(-1.4, -124.2, 0)),
    Part.ArcOfCircle(Part.Circle(Vector(0, -124.2, 0), Vector(0, 0, 1), 1.4), math.radians(180), math.radians(360)),
], False)
sketch11.addConstraint([
    Sketcher.Constraint("Tangent", 0, 2, 1, 1),
    Sketcher.Constraint("Tangent", 1, 2, 2, 1),
    Sketcher.Constraint("Tangent", 2, 2, 3, 1),
    Sketcher.Constraint("Tangent", 3, 2, 0, 1),
    Sketcher.Constraint("Vertical", 0),
    Sketcher.Constraint("Vertical", 2),
    Sketcher.Constraint("PointOnObject", 1, 3, -2),
    Sketcher.Constraint("Radius", 1, 1.4),
    Sketcher.Constraint("DistanceY", 0, 1, 0, 2, 0.4),
    Sketcher.Constraint("DistanceY", 1, 3, -1, 1, 123.8),
])
pocket5 = body.newObject("PartDesign::Pocket", "Pocket004")
pocket5.Profile = sketch11
pocket5.Length = 0.8
pocket5.Reversed = True

# Sketch on YZ plane
sketch12 = body.newObject("Sketcher::SketchObject", "Sketch011")
sketch12.AttachmentSupport = (doc.getObject("YZ_Plane"), [""])
sketch12.MapMode = "FlatFace"
sketch12.AttachmentOffset = App.Placement(Vector(0, 0, -2.85), App.Rotation())
sketch12.addGeometry([
    Part.LineSegment(Vector(1.4, -138.2, 0), Vector(1.4, -137.8, 0)),
    Part.ArcOfCircle(Part.Circle(Vector(0, -137.8, 0), Vector(0, 0, 1), 1.4), math.radians(0), math.radians(180)),
    Part.LineSegment(Vector(-1.4, -137.8, 0), Vector(-1.4, -138.2, 0)),
    Part.ArcOfCircle(Part.Circle(Vector(0, -138.2, 0), Vector(0, 0, 1), 1.4), math.radians(180), math.radians(360)),
], False)
sketch12.addConstraint([
    Sketcher.Constraint("Tangent", 0, 2, 1, 1),
    Sketcher.Constraint("Tangent", 1, 2, 2, 1),
    Sketcher.Constraint("Tangent", 2, 2, 3, 1),
    Sketcher.Constraint("Tangent", 3, 2, 0, 1),
    Sketcher.Constraint("Vertical", 0),
    Sketcher.Constraint("Vertical", 2),
    Sketcher.Constraint("PointOnObject", 1, 3, -2),
    Sketcher.Constraint("Radius", 1, 1.4),
    Sketcher.Constraint("DistanceY", 0, 1, 0, 2, 0.4),
    Sketcher.Constraint("DistanceY", 1, 3, -1, 1, 137.8),
])
pocket6 = body.newObject("PartDesign::Pocket", "Pocket005")
pocket6.Profile = sketch12
pocket6.Length = 0.8
pocket6.Reversed = True

# Sketch on YZ plane
sketch13 = body.newObject("Sketcher::SketchObject", "Sketch012")
sketch13.AttachmentSupport = (doc.getObject("YZ_Plane"), [""])
sketch13.MapMode = "FlatFace"
sketch13.AttachmentOffset = App.Placement(Vector(0, 0, -2.85), App.Rotation())
sketch13.addGeometry([
    Part.LineSegment(Vector(1.4, -75.2, 0), Vector(1.4, -74.8, 0)),
    Part.ArcOfCircle(Part.Circle(Vector(0, -74.8, 0), Vector(0, 0, 1), 1.4), math.radians(0), math.radians(180)),
    Part.LineSegment(Vector(-1.4, -74.8, 0), Vector(-1.4, -75.2, 0)),
    Part.ArcOfCircle(Part.Circle(Vector(0, -75.2, 0), Vector(0, 0, 1), 1.4), math.radians(180), math.radians(360)),
], False)
sketch13.addConstraint([
    Sketcher.Constraint("Tangent", 0, 2, 1, 1),
    Sketcher.Constraint("Tangent", 1, 2, 2, 1),
    Sketcher.Constraint("Tangent", 2, 2, 3, 1),
    Sketcher.Constraint("Tangent", 3, 2, 0, 1),
    Sketcher.Constraint("Vertical", 0),
    Sketcher.Constraint("Vertical", 2),
    Sketcher.Constraint("PointOnObject", 1, 3, -2),
    Sketcher.Constraint("Radius", 1, 1.4),
    Sketcher.Constraint("DistanceY", 0, 1, 0, 2, 0.4),
    Sketcher.Constraint("DistanceY", 1, 3, -1, 1, 74.8),
])
pocket7 = body.newObject("PartDesign::Pocket", "Pocket006")
pocket7.Profile = sketch13
pocket7.Length = 0.8
pocket7.Reversed = True

doc.recompute()
